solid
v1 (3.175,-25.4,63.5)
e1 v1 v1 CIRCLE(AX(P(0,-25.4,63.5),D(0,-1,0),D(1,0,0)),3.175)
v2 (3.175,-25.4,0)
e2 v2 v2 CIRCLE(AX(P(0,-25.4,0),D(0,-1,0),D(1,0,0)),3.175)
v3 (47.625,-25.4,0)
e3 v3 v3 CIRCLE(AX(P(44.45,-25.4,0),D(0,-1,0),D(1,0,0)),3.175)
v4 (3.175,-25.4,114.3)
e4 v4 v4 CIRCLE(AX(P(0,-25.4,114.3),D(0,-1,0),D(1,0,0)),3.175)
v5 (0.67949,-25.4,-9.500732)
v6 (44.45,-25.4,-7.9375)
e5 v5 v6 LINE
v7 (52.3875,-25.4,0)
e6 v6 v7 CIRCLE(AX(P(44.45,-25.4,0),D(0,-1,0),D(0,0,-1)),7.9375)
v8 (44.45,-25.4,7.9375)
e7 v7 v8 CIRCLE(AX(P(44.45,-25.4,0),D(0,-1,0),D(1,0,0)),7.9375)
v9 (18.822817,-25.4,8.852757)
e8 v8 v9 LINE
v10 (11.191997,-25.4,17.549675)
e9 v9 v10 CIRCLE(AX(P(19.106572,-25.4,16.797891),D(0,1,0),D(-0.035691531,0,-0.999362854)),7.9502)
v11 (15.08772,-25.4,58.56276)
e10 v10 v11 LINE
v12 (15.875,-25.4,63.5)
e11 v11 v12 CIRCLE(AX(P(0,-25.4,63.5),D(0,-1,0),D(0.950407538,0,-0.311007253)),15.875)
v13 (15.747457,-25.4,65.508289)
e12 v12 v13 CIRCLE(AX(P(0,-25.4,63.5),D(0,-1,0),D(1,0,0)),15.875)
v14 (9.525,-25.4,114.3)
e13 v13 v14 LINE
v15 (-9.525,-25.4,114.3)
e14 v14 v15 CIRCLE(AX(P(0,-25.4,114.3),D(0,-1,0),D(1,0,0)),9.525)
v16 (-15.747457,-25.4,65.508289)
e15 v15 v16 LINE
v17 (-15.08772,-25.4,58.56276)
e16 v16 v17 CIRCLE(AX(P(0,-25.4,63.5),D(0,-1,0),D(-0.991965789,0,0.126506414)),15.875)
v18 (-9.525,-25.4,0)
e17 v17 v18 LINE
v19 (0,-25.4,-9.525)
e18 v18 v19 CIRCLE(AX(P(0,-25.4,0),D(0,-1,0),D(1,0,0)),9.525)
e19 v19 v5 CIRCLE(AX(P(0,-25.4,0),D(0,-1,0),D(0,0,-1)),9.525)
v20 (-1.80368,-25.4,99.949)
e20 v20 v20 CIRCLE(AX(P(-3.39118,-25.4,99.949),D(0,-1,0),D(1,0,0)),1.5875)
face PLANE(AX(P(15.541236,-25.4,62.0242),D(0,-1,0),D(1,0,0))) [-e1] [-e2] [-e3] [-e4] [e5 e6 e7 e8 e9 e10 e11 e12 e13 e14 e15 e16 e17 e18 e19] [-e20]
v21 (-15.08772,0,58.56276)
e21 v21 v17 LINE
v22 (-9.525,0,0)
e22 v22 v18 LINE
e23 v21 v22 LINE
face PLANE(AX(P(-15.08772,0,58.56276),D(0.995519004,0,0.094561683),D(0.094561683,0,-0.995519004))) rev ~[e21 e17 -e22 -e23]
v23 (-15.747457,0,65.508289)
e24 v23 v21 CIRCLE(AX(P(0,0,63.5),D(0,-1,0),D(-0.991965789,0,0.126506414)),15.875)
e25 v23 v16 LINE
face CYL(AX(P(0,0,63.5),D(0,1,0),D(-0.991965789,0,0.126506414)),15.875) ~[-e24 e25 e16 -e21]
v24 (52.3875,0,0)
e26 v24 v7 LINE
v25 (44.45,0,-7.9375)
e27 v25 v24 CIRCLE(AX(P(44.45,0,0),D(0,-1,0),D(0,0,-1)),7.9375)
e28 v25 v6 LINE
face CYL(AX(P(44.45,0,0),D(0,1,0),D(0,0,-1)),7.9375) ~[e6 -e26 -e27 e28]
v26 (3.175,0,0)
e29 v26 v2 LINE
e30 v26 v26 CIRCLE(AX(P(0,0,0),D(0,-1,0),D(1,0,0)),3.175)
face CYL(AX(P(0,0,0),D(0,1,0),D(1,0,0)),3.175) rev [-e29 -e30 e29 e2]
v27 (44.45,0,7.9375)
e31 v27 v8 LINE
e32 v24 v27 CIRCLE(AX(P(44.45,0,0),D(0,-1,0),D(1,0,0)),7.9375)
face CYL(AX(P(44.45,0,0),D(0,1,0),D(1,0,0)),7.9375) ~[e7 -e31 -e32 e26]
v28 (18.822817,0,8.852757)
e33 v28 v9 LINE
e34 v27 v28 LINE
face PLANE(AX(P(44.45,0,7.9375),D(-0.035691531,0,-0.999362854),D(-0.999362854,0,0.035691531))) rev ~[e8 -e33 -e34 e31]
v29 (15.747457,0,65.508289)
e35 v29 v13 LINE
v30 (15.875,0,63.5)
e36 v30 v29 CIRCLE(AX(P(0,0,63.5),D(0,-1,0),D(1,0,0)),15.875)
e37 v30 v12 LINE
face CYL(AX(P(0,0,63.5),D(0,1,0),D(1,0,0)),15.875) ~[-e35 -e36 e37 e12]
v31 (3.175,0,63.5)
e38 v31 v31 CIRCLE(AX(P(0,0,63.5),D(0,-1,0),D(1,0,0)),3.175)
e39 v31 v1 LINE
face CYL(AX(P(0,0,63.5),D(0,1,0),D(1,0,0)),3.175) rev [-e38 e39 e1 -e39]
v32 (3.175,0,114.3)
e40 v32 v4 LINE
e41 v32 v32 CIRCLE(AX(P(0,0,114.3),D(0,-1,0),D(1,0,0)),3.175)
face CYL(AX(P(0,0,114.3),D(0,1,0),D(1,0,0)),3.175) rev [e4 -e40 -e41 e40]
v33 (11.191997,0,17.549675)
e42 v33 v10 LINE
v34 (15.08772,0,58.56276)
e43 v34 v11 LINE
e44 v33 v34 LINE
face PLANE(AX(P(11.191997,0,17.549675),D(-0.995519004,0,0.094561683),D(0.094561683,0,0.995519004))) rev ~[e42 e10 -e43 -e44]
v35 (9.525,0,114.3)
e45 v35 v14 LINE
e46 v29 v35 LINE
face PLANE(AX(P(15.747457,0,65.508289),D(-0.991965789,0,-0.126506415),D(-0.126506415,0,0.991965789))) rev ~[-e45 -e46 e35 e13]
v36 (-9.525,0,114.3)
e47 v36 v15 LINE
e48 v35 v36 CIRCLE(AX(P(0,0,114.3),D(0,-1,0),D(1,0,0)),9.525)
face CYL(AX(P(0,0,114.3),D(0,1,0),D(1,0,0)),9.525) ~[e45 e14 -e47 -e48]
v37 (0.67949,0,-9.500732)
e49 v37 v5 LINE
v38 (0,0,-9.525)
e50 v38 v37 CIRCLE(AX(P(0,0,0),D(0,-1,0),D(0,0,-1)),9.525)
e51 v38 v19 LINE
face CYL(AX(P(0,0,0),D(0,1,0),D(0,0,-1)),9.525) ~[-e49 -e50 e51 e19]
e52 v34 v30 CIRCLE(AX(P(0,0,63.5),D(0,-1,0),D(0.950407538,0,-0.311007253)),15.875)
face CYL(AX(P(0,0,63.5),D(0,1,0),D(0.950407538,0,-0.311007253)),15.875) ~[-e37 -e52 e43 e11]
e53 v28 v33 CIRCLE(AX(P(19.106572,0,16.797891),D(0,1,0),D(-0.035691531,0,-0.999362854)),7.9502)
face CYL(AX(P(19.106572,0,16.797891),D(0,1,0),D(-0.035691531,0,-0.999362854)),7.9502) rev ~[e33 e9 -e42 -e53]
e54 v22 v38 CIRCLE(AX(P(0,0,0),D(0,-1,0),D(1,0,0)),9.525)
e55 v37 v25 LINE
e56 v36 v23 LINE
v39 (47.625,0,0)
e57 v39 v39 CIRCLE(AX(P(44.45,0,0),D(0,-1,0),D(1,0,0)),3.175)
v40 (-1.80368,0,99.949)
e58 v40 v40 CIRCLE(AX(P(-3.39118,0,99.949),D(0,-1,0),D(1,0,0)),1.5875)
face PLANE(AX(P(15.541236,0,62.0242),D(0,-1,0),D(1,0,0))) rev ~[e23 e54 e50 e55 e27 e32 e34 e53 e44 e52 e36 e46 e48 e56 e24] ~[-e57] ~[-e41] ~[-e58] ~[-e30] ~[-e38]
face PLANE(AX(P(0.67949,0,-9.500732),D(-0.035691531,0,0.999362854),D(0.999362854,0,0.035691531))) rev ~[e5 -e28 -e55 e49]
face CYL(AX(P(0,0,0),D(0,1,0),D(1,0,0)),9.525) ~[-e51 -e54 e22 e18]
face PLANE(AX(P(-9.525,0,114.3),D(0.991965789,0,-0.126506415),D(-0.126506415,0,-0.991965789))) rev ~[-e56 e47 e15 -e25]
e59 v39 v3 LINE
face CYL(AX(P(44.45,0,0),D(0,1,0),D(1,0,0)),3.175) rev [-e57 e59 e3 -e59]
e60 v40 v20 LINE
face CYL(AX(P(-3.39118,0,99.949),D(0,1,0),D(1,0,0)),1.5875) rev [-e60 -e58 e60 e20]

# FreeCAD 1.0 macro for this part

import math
import FreeCAD as App
import Part
import Sketcher
Q = App.Units.Quantity

doc = App.newDocument("Part")
body = doc.addObject("PartDesign::Body", "Body")

sketch1 = body.newObject("Sketcher::SketchObject", "Sketch")
sketch1.AttachmentSupport = (doc.getObject("XZ_Plane"), [""])
sketch1.MapMode = "FlatFace"
sketch1.addGeometry(Part.ArcOfCircle(Part.Circle(App.Vector(0, 63.5, 0), App.Vector(0, 0, 1), 15.9), math.radians(-18.12), math.radians(0)), False)
sketch1.addGeometry(Part.ArcOfCircle(Part.Circle(App.Vector(0, 63.5, 0), App.Vector(0, 0, 1), 15.9), math.radians(0), math.radians(7.27)), False)
sketch1.addGeometry(Part.LineSegment(App.Vector(15.7, 65.5, 0), App.Vector(9.5, 114.3, 0)), False)
sketch1.addGeometry(Part.ArcOfCircle(Part.Circle(App.Vector(0, 114.3, 0), App.Vector(0, 0, 1), 9.5), math.radians(0), math.radians(180)), False)
sketch1.addGeometry(Part.LineSegment(App.Vector(-9.5, 114.3, 0), App.Vector(-15.7, 65.5, 0)), False)
sketch1.addGeometry(Part.ArcOfCircle(Part.Circle(App.Vector(0, 63.5, 0), App.Vector(0, 0, 1), 15.9), math.radians(173), math.radians(198)), False)
sketch1.addGeometry(Part.LineSegment(App.Vector(-15.1, 58.6, 0), App.Vector(-9.5, 0, 0)), False)
sketch1.addGeometry(Part.ArcOfCircle(Part.Circle(App.Vector(0, 0, 0), App.Vector(0, 0, 1), 9.5), math.radians(180), math.radians(270)), False)
sketch1.addGeometry(Part.ArcOfCircle(Part.Circle(App.Vector(0, 0, 0), App.Vector(0, 0, 1), 9.5), math.radians(-90), math.radians(-85.91)), False)
sketch1.addGeometry(Part.LineSegment(App.Vector(0.7, -9.5, 0), App.Vector(44.5, -7.9, 0)), False)
sketch1.addGeometry(Part.ArcOfCircle(Part.Circle(App.Vector(44.5, 0, 0), App.Vector(0, 0, 1), 7.9), math.radians(-90), math.radians(0)), False)
sketch1.addGeometry(Part.ArcOfCircle(Part.Circle(App.Vector(44.5, 0, 0), App.Vector(0, 0, 1), 7.9), math.radians(0), math.radians(90)), False)
sketch1.addGeometry(Part.LineSegment(App.Vector(44.5, 7.9, 0), App.Vector(18.8, 8.9, 0)), False)
sketch1.addGeometry(Part.ArcOfCircle(Part.Circle(App.Vector(19.1, 16.8, 0), App.Vector(0, 0, 1), 8), math.radians(175), math.radians(268)), False)
sketch1.addGeometry(Part.LineSegment(App.Vector(11.2, 17.5, 0), App.Vector(15.1, 58.6, 0)), False)
sketch1.addGeometry(Part.Circle(App.Vector(0, 0, 0), App.Vector(0, 0, 1), 3.2), False)
sketch1.addGeometry(Part.Circle(App.Vector(44.5, 0, 0), App.Vector(0, 0, 1), 3.2), False)
sketch1.addGeometry(Part.Circle(App.Vector(0, 63.5, 0), App.Vector(0, 0, 1), 3.2), False)
sketch1.addGeometry(Part.Circle(App.Vector(-3.4, 99.9, 0), App.Vector(0, 0, 1), 1.6), False)
sketch1.addGeometry(Part.Circle(App.Vector(0, 114.3, 0), App.Vector(0, 0, 1), 3.2), False)
sketch1.addConstraint(Sketcher.Constraint("Tangent", 0, 2, 1, 1))
sketch1.addConstraint(Sketcher.Constraint("Tangent", 1, 2, 2, 1))
sketch1.addConstraint(Sketcher.Constraint("Coincident", 2, 2, 3, 1))
sketch1.addConstraint(Sketcher.Constraint("Coincident", 3, 2, 4, 1))
sketch1.addConstraint(Sketcher.Constraint("Tangent", 4, 2, 5, 1))
sketch1.addConstraint(Sketcher.Constraint("Coincident", 5, 2, 6, 1))
sketch1.addConstraint(Sketcher.Constraint("Coincident", 6, 2, 7, 1))
sketch1.addConstraint(Sketcher.Constraint("Tangent", 7, 2, 8, 1))
sketch1.addConstraint(Sketcher.Constraint("Coincident", 8, 2, 9, 1))
sketch1.addConstraint(Sketcher.Constraint("Coincident", 9, 2, 10, 1))
sketch1.addConstraint(Sketcher.Constraint("Tangent", 10, 2, 11, 1))
sketch1.addConstraint(Sketcher.Constraint("Coincident", 11, 2, 12, 1))
sketch1.addConstraint(Sketcher.Constraint("Tangent", 12, 2, 13, 2))
sketch1.addConstraint(Sketcher.Constraint("Tangent", 13, 1, 14, 1))
sketch1.addConstraint(Sketcher.Constraint("Coincident", 14, 2, 0, 1))
sketch1.addConstraint(Sketcher.Constraint("Coincident", 7, 3, -1, 1))
sketch1.addConstraint(Sketcher.Constraint("Coincident", 15, 3, -1, 1))
sketch1.addConstraint(Sketcher.Constraint("Coincident", 5, 3, 0, 3))
sketch1.addConstraint(Sketcher.Constraint("Coincident", 16, 3, 10, 3))
sketch1.addConstraint(Sketcher.Constraint("Coincident", 17, 3, 0, 3))
sketch1.addConstraint(Sketcher.Constraint("Coincident", 19, 3, 3, 3))
sketch1.addConstraint(Sketcher.Constraint("Equal", 0, 1))
sketch1.addConstraint(Sketcher.Constraint("Equal", 1, 5))
sketch1.addConstraint(Sketcher.Constraint("Equal", 3, 7))
sketch1.addConstraint(Sketcher.Constraint("Equal", 7, 8))
sketch1.addConstraint(Sketcher.Constraint("Equal", 10, 11))
sketch1.addConstraint(Sketcher.Constraint("Equal", 15, 16))
sketch1.addConstraint(Sketcher.Constraint("Equal", 16, 17))
sketch1.addConstraint(Sketcher.Constraint("Equal", 17, 19))
sketch1.addConstraint(Sketcher.Constraint("Symmetric", 2, 2, 3, 2, -2))
sketch1.addConstraint(Sketcher.Constraint("Symmetric", 5, 2, 14, 2, -2))
sketch1.addConstraint(Sketcher.Constraint("Symmetric", 9, 2, 11, 2, -1))
sketch1.addConstraint(Sketcher.Constraint("PointOnObject", 6, 2, -1))
sketch1.addConstraint(Sketcher.Constraint("PointOnObject", 7, 2, -2))
sketch1.addConstraint(Sketcher.Constraint("PointOnObject", 10, 2, -1))
sketch1.addConstraint(Sketcher.Constraint("Horizontal", 17, 3, 0, 2))
sketch1.addConstraint(Sketcher.Constraint("Horizontal", 19, 3, 2, 2))
sketch1.addConstraint(Sketcher.Constraint("Vertical", 16, 3, 9, 2))
sketch1.addConstraint(Sketcher.Constraint("Diameter", 15, Q("0.25 in")))
sketch1.addConstraint(Sketcher.Constraint("Diameter", 18, Q("0.125 in")))
sketch1.addConstraint(Sketcher.Constraint("Radius", 0, Q("0.625 in")))
sketch1.addConstraint(Sketcher.Constraint("Radius", 3, Q("0.375 in")))
sketch1.addConstraint(Sketcher.Constraint("Radius", 10, Q("0.3125 in")))
sketch1.addConstraint(Sketcher.Constraint("Radius", 13, Q("0.313 in")))
sketch1.addConstraint(Sketcher.Constraint("DistanceY", 1, 3, 3, 3, Q("2 in")))
sketch1.addConstraint(Sketcher.Constraint("DistanceY", -1, 1, 0, 3, Q("2.5 in")))
sketch1.addConstraint(Sketcher.Constraint("DistanceX", -1, 1, 10, 3, Q("1.75 in")))
sketch1.addConstraint(Sketcher.Constraint("DistanceY", -1, 1, 18, 3, Q("3.935 in")))
sketch1.addConstraint(Sketcher.Constraint("Distance", 6, 58.826361))
sketch1.addConstraint(Sketcher.Constraint("Distance", 12, 25.643522))
sketch1.addConstraint(Sketcher.Constraint("Distance", 14, 41.197691))
sketch1.addConstraint(Sketcher.Constraint("DistanceX", 18, 3, -1, 1, 3.39118))
sketch1.addConstraint(Sketcher.Constraint("DistanceX", -1, 1, 8, 2, 0.67949))
pad1 = body.newObject("PartDesign::Pad", "Pad")
pad1.Profile = sketch1
pad1.Length = Q("1 in")

doc.recompute()
